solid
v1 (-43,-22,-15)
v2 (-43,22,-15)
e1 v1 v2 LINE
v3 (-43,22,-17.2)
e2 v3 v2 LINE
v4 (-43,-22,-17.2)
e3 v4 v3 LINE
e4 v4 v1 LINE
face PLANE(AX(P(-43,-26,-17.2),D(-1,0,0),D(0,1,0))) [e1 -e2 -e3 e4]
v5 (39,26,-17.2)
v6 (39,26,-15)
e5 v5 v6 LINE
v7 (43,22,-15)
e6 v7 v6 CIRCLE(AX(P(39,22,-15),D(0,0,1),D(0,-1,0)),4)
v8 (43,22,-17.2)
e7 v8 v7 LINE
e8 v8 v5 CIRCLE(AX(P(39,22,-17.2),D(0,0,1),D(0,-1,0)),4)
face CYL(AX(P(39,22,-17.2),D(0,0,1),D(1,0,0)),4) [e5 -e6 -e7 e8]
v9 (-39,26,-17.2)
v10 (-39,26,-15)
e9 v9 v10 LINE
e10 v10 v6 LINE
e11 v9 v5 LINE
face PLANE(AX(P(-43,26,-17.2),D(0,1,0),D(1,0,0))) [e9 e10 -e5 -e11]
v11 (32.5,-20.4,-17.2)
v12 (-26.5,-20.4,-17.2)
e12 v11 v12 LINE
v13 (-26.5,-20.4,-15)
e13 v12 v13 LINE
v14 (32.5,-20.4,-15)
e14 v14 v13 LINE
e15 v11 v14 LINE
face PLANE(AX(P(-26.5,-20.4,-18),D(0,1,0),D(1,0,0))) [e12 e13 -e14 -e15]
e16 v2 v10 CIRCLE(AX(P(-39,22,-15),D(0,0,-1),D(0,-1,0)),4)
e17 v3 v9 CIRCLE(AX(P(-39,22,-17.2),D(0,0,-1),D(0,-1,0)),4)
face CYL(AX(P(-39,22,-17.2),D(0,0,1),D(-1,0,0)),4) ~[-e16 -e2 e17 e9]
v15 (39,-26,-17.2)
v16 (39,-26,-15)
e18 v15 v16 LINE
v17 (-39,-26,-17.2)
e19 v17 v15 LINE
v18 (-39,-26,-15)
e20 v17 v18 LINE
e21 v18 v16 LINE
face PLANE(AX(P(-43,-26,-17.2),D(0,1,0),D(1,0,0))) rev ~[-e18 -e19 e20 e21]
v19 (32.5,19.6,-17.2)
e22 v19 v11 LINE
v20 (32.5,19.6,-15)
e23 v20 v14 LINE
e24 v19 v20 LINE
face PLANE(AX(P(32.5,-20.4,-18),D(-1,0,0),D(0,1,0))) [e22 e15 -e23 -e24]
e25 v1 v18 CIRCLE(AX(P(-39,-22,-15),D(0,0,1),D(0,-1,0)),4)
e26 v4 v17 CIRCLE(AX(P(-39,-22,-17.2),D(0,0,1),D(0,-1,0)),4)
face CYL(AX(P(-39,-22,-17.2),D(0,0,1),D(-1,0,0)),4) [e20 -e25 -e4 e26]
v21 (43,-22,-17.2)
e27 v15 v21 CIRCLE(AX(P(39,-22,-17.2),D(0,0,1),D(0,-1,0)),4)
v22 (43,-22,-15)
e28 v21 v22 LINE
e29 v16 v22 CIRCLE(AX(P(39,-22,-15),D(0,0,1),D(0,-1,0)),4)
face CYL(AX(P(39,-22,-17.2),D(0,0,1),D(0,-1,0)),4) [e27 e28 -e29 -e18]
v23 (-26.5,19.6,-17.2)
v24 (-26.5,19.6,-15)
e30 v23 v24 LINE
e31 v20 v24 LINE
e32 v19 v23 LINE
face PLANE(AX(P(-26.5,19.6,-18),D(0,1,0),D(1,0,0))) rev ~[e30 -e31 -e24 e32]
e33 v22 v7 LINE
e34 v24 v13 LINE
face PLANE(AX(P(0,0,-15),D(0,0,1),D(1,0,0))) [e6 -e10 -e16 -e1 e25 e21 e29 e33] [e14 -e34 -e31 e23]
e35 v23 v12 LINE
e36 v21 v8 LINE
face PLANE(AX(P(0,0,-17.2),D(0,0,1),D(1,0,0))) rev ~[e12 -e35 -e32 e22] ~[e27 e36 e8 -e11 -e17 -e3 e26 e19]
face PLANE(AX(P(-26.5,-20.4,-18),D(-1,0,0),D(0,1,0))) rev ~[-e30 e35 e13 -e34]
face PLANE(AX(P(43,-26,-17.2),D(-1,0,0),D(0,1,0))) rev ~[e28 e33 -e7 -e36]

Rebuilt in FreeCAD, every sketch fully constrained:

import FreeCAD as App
import Part
import Sketcher


def edges_at(feature, points):
    """Names of the edges that pass closest to the given points."""
    edges = feature.Shape.Edges
    near = lambda p: min(range(len(edges)), key=lambda i: edges[i].distToShape(Part.Vertex(*p))[0])
    return sorted({f"Edge{near(p) + 1}" for p in points})


def add_polygon(sketch, points):
    """Adds a closed chain of lines whose ends are joined by coincident constraints."""
    first, n = sketch.GeometryCount, len(points)
    for a, b in zip(points, points[1:] + points[:1]):
        sketch.addGeometry(Part.LineSegment(App.Vector(*a, 0), App.Vector(*b, 0)), False)
    for i in range(n):
        sketch.addConstraint(Sketcher.Constraint("Coincident", first + i, 2, first + (i + 1) % n, 1))

doc = App.newDocument("Part")
params = doc.addObject("Spreadsheet::Sheet", "Params")
for row, (alias, value) in enumerate([
    ("sketch1_width", "59 mm"),
    ("sketch1_height", "40 mm"),
    ("pad1_length", "4 mm"),
    ("sketch2_width", "86 mm"),
    ("sketch2_height", "52 mm"),
    ("pad2_length", "2.2 mm"),
    ("fillet_radius", "4 mm"),
], start=1):
    params.set(f"A{row}", alias)
    params.set(f"B{row}", "=" + value)
    params.setAlias(f"B{row}", alias)

body = doc.addObject("PartDesign::Body", "Body")

sketch1 = body.newObject("Sketcher::SketchObject", "Sketch")
sketch1.AttachmentSupport = (doc.getObject("XY_Plane"), [""])
sketch1.MapMode = "FlatFace"
sketch1.AttachmentOffset = App.Placement(App.Vector(0, 0, -18), App.Rotation())
add_polygon(sketch1, [(-26, 20), (-26, -20), (32, -20), (32, 20)])
sketch1.addConstraint([
    Sketcher.Constraint("Vertical", 0),
    Sketcher.Constraint("Horizontal", 1),
    Sketcher.Constraint("Vertical", 2),
    Sketcher.Constraint("Horizontal", 3),
    Sketcher.Constraint("DistanceX", 1, 1, 1, 2, 59.0),
    Sketcher.Constraint("DistanceY", 0, 2, 0, 1, 40.0),
    Sketcher.Constraint("DistanceX", 0, 2, -1, 1, 26.5),
    Sketcher.Constraint("DistanceY", 0, 2, -1, 1, 20.4),
])
sketch1.setExpression("Constraints[8]", "Params.sketch1_width")
sketch1.setExpression("Constraints[9]", "Params.sketch1_height")
pad1 = body.newObject("PartDesign::Pad", "Pad")
pad1.Profile = sketch1
pad1.setExpression("Length", "Params.pad1_length")
body2 = doc.addObject("PartDesign::Body", "Body001")

sketch2 = body2.newObject("Sketcher::SketchObject", "Sketch001")
sketch2.AttachmentSupport = (doc.getObject("XY_Plane001"), [""])
sketch2.MapMode = "FlatFace"
sketch2.AttachmentOffset = App.Placement(App.Vector(0, 0, -17.2), App.Rotation())
add_polygon(sketch2, [(-43, 26), (-43, -26), (43, -26), (43, 26)])
sketch2.addConstraint([
    Sketcher.Constraint("Vertical", 0),
    Sketcher.Constraint("Horizontal", 1),
    Sketcher.Constraint("Vertical", 2),
    Sketcher.Constraint("Horizontal", 3),
    Sketcher.Constraint("Symmetric", 0, 2, 2, 2, -1, 1),
    Sketcher.Constraint("DistanceX", 1, 1, 1, 2, 86.0),
    Sketcher.Constraint("DistanceY", 0, 2, 0, 1, 52.0),
])
sketch2.setExpression("Constraints[9]", "Params.sketch2_width")
sketch2.setExpression("Constraints[10]", "Params.sketch2_height")
pad2 = body2.newObject("PartDesign::Pad", "Pad001")
pad2.Profile = sketch2
pad2.setExpression("Length", "Params.pad2_length")
doc.recompute()

fillet = body2.newObject("PartDesign::Fillet", "Fillet")
fillet.Base = (pad2, edges_at(pad2, [
    (-43, -26, -16.1),
    (-43, 26, -16.1),
    (43, -26, -16.1),
    (43, 26, -16.1),
]))
fillet.setExpression("Radius", "Params.fillet_radius")
doc.recompute()

boolean = body2.newObject("PartDesign::Boolean", "Boolean")
boolean.Type = "Cut"
boolean.addObjects([body])

doc.recompute()
